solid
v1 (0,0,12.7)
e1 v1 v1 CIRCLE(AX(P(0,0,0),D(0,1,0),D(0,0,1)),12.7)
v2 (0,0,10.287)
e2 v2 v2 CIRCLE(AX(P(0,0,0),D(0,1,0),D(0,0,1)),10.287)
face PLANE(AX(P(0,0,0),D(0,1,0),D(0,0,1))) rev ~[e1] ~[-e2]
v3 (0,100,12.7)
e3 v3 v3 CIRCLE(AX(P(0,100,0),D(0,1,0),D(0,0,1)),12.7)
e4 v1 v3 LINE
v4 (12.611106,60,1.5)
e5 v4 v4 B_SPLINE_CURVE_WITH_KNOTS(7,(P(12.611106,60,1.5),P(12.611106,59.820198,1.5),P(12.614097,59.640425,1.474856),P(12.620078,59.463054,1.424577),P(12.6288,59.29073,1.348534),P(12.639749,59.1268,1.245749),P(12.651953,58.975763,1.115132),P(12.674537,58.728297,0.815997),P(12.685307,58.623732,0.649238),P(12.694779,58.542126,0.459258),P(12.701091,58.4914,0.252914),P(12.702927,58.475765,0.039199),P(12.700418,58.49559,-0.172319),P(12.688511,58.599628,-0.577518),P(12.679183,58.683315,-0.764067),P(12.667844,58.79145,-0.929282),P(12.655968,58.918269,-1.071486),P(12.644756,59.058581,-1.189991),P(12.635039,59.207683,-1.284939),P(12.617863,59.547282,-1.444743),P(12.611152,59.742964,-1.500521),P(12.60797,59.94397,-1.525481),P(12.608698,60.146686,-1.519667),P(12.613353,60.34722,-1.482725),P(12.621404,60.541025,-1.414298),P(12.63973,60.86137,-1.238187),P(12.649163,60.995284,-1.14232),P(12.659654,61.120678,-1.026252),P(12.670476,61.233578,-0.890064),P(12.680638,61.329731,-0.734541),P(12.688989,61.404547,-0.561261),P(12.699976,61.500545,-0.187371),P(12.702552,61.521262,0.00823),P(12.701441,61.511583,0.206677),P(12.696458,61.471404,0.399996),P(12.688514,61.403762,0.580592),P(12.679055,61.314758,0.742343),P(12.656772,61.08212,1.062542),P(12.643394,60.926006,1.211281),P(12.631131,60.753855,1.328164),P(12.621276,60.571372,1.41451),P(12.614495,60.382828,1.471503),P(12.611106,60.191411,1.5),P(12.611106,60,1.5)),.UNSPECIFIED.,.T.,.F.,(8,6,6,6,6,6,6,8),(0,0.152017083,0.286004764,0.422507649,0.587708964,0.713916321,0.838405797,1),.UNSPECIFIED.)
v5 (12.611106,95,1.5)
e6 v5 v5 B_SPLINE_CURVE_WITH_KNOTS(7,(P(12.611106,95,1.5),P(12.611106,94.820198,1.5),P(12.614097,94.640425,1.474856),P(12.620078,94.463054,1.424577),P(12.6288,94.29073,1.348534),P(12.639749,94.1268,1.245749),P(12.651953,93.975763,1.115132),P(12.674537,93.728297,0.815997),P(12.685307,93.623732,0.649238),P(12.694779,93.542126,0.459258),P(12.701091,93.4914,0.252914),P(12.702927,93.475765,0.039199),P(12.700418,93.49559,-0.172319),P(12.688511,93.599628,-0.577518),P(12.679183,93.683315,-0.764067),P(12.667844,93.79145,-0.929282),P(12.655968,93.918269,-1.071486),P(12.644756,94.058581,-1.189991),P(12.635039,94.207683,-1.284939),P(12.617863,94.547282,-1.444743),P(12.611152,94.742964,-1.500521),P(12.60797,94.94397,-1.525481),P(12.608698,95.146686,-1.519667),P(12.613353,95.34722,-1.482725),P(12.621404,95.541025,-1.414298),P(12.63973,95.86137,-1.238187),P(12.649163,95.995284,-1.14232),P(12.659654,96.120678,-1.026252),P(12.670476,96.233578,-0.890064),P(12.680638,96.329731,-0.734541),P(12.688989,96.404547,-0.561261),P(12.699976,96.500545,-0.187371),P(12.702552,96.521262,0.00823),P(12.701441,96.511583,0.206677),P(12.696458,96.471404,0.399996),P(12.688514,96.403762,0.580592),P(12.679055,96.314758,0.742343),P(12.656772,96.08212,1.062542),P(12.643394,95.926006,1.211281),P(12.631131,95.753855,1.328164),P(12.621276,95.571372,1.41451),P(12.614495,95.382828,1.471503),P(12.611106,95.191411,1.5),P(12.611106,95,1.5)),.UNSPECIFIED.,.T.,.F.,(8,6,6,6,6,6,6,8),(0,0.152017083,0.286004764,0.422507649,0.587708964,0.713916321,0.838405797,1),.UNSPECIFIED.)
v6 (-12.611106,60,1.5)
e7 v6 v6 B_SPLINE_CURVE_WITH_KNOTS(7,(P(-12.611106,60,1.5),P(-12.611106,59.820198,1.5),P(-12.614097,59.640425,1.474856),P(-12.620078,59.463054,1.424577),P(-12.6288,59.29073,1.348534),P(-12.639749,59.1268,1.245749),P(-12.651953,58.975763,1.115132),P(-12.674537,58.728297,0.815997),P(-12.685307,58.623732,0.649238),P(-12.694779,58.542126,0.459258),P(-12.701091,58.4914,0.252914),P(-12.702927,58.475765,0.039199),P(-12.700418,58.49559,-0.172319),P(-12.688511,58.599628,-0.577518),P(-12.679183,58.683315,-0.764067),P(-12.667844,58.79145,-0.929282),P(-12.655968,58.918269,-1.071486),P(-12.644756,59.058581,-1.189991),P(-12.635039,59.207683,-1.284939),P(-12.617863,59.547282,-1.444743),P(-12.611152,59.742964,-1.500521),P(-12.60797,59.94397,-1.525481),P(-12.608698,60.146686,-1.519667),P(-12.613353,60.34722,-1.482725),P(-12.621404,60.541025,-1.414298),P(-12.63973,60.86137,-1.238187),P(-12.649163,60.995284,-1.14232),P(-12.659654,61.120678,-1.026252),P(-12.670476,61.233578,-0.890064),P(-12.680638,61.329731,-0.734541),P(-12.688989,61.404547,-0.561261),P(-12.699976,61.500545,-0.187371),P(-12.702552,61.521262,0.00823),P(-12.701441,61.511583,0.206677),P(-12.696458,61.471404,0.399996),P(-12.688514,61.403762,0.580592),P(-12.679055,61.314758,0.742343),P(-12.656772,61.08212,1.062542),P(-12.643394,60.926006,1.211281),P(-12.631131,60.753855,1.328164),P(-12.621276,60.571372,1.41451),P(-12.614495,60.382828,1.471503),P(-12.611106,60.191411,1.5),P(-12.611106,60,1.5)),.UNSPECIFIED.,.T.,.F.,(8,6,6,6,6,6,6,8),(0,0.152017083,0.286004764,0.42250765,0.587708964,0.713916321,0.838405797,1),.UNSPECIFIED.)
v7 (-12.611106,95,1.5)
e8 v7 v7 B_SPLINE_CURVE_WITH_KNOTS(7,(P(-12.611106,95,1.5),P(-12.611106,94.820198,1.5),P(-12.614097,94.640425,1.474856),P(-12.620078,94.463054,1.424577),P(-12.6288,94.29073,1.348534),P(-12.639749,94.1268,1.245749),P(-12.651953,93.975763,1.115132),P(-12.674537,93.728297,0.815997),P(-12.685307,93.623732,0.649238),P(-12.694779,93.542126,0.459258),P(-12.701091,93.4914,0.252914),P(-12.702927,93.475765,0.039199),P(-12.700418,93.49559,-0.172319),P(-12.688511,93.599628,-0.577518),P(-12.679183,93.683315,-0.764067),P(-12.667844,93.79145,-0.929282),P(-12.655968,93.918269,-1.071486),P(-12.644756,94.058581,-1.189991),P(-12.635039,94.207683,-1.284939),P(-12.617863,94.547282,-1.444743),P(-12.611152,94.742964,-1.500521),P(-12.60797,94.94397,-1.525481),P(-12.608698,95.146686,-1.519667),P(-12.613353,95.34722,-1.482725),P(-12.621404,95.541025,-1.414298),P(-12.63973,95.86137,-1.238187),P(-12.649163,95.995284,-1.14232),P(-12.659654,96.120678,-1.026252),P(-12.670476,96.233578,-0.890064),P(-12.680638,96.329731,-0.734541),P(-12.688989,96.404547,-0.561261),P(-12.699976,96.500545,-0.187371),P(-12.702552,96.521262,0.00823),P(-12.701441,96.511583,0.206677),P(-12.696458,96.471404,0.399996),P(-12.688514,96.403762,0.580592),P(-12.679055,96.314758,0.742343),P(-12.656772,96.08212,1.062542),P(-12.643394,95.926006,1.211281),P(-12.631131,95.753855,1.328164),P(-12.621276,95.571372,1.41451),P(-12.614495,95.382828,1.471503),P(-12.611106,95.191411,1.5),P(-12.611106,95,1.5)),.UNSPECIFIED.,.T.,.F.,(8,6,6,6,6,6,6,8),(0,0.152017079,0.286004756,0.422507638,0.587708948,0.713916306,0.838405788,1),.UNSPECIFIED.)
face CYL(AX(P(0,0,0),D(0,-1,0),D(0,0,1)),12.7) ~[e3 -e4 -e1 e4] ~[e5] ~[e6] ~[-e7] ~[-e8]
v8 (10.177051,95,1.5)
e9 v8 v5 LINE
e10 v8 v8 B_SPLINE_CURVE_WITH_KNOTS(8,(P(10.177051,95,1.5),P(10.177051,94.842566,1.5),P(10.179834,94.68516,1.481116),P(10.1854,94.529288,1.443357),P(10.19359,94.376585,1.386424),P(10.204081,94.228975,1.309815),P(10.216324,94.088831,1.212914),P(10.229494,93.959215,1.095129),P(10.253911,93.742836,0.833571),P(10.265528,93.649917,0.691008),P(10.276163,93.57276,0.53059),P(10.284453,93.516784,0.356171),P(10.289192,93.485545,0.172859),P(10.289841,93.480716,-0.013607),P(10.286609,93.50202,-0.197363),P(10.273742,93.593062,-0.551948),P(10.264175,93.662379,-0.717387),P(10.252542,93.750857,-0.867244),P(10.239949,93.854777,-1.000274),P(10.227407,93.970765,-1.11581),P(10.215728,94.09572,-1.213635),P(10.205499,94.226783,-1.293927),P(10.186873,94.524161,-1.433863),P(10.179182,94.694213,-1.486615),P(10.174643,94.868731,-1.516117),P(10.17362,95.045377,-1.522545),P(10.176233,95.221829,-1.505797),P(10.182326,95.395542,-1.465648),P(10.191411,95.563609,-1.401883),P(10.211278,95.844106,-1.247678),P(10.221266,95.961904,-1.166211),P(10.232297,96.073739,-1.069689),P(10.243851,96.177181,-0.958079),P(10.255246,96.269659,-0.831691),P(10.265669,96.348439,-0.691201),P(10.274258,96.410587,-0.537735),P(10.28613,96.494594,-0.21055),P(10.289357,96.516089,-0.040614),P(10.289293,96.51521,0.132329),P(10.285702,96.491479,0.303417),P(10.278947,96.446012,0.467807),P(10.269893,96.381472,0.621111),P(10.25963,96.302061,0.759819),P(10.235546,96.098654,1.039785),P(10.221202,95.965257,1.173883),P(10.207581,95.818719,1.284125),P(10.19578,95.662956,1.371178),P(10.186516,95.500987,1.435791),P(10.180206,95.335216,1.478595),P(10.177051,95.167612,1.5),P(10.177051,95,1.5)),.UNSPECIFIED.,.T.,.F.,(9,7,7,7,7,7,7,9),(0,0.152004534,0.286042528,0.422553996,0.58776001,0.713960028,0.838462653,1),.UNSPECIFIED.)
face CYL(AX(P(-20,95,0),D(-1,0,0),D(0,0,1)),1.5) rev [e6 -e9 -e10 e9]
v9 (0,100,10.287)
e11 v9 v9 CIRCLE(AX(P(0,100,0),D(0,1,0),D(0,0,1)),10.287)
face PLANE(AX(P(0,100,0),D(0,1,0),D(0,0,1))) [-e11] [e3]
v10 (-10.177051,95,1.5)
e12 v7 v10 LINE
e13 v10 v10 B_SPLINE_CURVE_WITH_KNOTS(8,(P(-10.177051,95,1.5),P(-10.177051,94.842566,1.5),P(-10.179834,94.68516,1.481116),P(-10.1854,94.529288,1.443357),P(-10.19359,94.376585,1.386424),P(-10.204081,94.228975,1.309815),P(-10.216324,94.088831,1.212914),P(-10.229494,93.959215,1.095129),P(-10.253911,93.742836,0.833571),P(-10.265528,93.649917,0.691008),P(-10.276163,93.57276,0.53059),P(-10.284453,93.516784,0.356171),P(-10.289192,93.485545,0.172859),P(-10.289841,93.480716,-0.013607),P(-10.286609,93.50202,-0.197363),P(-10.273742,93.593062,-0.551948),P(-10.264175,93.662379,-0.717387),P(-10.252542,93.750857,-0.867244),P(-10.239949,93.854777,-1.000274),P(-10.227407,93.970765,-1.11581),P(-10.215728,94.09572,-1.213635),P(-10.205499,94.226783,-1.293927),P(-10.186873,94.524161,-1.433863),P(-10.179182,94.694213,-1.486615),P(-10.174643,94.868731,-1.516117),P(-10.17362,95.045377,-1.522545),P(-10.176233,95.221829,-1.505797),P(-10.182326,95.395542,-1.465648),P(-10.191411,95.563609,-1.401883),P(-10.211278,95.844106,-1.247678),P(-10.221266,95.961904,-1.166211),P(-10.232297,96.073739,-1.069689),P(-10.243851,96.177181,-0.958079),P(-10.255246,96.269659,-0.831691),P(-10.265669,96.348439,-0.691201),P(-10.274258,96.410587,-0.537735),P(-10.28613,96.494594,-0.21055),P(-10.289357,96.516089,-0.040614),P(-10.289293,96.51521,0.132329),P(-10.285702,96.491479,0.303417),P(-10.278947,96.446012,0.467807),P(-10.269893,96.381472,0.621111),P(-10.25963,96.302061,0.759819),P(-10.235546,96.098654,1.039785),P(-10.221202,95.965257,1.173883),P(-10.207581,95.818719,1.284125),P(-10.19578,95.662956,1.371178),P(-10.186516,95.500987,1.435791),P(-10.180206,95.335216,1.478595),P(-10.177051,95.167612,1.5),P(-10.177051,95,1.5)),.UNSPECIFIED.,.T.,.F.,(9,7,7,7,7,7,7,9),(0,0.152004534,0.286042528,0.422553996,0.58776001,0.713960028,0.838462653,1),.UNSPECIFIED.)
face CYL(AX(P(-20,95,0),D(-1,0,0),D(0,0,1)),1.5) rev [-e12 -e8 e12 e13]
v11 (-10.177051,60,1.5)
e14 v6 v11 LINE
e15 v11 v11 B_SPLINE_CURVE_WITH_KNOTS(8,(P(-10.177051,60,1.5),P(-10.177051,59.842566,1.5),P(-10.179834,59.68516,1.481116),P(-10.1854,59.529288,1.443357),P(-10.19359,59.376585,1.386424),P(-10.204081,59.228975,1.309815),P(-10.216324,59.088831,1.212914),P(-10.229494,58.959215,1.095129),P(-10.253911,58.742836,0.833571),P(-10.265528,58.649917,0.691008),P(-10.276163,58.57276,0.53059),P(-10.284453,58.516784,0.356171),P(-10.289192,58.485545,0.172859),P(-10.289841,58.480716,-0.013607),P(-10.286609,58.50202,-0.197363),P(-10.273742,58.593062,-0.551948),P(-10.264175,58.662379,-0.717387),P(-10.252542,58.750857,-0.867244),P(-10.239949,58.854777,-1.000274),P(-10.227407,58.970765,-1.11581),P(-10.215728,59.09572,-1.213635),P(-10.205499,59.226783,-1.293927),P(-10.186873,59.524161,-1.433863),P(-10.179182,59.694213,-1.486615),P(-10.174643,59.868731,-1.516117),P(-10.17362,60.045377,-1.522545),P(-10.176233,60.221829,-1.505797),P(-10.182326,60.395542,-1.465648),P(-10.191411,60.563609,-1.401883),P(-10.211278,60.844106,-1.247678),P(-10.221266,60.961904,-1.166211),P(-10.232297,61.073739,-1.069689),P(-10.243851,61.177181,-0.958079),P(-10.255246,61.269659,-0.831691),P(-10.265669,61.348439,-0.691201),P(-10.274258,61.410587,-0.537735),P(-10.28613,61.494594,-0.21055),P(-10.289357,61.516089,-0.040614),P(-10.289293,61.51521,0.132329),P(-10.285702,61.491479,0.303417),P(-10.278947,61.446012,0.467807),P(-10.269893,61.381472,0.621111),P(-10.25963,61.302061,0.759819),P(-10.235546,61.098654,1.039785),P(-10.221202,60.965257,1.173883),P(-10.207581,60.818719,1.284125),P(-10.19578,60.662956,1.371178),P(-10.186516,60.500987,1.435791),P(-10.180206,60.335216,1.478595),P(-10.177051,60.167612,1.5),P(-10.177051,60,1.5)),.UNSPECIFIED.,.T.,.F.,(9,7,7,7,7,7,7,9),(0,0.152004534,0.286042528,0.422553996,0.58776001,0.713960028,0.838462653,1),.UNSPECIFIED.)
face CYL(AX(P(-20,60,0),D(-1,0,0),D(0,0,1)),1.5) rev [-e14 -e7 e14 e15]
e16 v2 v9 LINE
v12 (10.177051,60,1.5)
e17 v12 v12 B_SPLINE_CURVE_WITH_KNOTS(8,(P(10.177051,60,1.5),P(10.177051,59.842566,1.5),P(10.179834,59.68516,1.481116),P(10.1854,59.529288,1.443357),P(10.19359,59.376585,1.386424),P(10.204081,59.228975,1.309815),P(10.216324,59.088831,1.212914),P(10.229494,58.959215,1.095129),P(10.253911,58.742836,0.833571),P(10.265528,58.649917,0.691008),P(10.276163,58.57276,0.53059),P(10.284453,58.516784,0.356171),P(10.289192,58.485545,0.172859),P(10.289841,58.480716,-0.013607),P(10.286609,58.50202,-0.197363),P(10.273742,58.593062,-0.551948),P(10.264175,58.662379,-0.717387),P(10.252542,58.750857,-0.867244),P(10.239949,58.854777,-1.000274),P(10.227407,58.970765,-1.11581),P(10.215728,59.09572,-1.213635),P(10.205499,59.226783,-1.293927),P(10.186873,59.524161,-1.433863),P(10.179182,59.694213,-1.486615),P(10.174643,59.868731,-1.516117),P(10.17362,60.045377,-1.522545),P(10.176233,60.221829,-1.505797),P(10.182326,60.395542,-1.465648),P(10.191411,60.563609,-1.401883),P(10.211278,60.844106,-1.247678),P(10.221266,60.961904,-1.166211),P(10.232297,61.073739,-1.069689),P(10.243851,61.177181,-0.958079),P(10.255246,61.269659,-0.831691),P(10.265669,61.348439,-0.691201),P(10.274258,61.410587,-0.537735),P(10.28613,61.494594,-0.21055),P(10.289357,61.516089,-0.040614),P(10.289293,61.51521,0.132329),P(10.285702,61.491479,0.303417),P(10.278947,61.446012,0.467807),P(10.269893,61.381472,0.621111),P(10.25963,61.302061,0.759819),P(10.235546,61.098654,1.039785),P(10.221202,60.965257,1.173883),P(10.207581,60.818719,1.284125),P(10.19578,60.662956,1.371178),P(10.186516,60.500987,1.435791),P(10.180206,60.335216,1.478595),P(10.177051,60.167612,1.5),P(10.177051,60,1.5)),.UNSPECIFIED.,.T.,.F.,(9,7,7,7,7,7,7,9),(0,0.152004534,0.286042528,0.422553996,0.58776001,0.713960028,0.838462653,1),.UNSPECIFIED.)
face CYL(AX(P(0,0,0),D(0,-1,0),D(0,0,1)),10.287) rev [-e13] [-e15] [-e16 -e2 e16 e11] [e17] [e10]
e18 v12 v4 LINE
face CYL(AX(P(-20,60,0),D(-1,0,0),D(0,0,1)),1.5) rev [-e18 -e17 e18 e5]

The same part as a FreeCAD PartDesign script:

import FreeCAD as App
import Part
import Sketcher

V = App.Vector
Q = App.Units.Quantity

doc = App.newDocument("Part")
body = doc.addObject("PartDesign::Body", "Body")

# Sketch on XZ plane
sketch1 = doc.addObject("Sketcher::SketchObject", "Sketch")
body.addObject(sketch1)
sketch1.AttachmentSupport = (doc.XZ_Plane, [""])
sketch1.MapMode = "FlatFace"
sketch1.addGeometry([
    Part.Circle(V(0, 0, 0), V(0, 0, 1), 13),
    Part.Circle(V(0, 0, 0), V(0, 0, 1), 10),
], False)
sketch1.addConstraint([
    Sketcher.Constraint("Coincident", 0, 3, -1, 1),
    Sketcher.Constraint("Coincident", 1, 3, -1, 1),
    Sketcher.Constraint("Diameter", 0, Q("25.4 mm")),
    Sketcher.Constraint("Diameter", 1, Q("20.574 mm")),
])
pad1 = doc.addObject("PartDesign::Pad", "Pad")
body.addObject(pad1)
pad1.Profile = sketch1
pad1.Length = 100
pad1.Reversed = True

# Sketch on YZ plane
sketch2 = doc.addObject("Sketcher::SketchObject", "Sketch001")
body.addObject(sketch2)
sketch2.AttachmentSupport = (doc.YZ_Plane, [""])
sketch2.MapMode = "FlatFace"
sketch2.addGeometry([
    Part.Circle(V(95, 0, 0), V(0, 0, 1), 1.5),
    Part.Circle(V(60, 0, 0), V(0, 0, 1), 1.5),
], False)
sketch2.addConstraint([
    Sketcher.Constraint("Equal", 0, 1),
    Sketcher.Constraint("PointOnObject", 0, 3, -1),
    Sketcher.Constraint("PointOnObject", 1, 3, -1),
    Sketcher.Constraint("Diameter", 0, Q("3 mm")),
    Sketcher.Constraint("DistanceX", -1, 1, 0, 3, Q("95 mm")),
    Sketcher.Constraint("DistanceX", -1, 1, 1, 3, Q("60 mm")),
])
pocket1 = doc.addObject("PartDesign::Pocket", "Pocket")
body.addObject(pocket1)
pocket1.Profile = sketch2
pocket1.Type = "ThroughAll"
pocket1.Midplane = True

doc.recompute()
